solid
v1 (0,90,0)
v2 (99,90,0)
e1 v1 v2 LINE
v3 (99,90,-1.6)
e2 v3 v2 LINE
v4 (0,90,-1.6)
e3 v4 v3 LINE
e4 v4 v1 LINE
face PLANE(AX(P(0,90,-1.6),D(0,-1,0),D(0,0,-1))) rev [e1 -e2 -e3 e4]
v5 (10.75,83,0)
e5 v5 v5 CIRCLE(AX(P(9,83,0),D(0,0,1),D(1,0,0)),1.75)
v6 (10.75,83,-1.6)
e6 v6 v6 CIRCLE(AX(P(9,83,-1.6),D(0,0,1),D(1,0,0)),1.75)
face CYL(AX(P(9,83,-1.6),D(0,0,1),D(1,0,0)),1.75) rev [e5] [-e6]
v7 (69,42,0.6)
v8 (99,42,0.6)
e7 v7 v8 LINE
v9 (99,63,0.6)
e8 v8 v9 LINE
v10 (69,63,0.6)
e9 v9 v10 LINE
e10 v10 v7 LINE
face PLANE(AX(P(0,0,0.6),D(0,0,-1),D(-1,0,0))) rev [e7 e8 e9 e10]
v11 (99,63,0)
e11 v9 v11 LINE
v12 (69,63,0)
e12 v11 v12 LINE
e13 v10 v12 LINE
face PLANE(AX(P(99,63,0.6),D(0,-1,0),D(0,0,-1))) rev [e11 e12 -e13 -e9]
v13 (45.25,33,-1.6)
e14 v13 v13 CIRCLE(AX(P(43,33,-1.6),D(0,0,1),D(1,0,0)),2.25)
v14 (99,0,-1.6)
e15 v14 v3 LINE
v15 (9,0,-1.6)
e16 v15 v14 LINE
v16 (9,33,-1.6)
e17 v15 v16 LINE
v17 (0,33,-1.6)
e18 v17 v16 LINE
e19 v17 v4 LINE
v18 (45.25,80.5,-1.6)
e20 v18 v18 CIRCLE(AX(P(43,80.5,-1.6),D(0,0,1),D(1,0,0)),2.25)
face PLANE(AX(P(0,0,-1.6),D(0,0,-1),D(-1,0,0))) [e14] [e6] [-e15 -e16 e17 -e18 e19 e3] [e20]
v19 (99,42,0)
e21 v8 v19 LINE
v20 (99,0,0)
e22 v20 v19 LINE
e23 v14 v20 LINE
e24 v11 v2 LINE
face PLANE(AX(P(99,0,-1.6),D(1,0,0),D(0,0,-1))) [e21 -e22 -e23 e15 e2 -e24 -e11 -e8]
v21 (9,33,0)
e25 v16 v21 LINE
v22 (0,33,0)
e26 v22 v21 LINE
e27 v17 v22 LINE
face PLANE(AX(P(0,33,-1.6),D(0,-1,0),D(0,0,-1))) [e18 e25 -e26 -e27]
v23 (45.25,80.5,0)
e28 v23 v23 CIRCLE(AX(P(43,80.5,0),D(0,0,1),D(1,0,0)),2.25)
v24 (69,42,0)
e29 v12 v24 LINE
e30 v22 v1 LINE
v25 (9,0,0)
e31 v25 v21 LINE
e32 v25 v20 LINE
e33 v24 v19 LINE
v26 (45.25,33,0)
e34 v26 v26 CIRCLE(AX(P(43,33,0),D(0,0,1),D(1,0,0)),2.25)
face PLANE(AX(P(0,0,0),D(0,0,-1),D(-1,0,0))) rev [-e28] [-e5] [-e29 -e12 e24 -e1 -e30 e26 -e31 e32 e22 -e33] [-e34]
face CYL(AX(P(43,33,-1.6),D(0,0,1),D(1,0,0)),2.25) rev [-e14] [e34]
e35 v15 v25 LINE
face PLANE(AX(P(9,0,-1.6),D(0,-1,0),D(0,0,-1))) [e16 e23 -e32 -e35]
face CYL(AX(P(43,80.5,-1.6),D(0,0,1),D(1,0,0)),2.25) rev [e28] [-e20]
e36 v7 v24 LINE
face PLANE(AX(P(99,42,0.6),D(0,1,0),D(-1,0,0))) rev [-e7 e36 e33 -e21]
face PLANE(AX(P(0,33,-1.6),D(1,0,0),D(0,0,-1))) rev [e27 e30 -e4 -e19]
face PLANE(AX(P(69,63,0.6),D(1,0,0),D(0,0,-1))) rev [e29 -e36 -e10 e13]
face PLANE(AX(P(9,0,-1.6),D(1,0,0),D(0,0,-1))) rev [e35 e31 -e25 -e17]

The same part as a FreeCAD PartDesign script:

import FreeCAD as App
import Part
import Sketcher
from FreeCAD import Vector
Q = App.Units.Quantity


def add_polygon(sketch, points):
    """Adds a closed chain of lines whose ends are joined by coincident constraints."""
    first, n = sketch.GeometryCount, len(points)
    for a, b in zip(points, points[1:] + points[:1]):
        sketch.addGeometry(Part.LineSegment(App.Vector(*a, 0), App.Vector(*b, 0)), False)
    for i in range(n):
        sketch.addConstraint(Sketcher.Constraint("Coincident", first + i, 2, first + (i + 1) % n, 1))

doc = App.newDocument("Part")
body = doc.addObject("PartDesign::Body", "Body")

# Sketch on XY plane
sketch1 = doc.addObject("Sketcher::SketchObject", "Sketch")
body.addObject(sketch1)
sketch1.AttachmentSupport = (doc.XY_Plane, [""])
sketch1.MapMode = "FlatFace"
add_polygon(sketch1, [(9, 0), (99, 0), (99, 90), (0, 90), (0, 33), (9, 33)])  # lines 0-5
sketch1.addConstraint([
    Sketcher.Constraint("Horizontal", 0),
    Sketcher.Constraint("Vertical", 1),
    Sketcher.Constraint("Horizontal", 2),
    Sketcher.Constraint("Vertical", 3),
    Sketcher.Constraint("Horizontal", 4),
    Sketcher.Constraint("Vertical", 5),
    Sketcher.Constraint("PointOnObject", 0, 2, -1),
    Sketcher.Constraint("PointOnObject", 2, 2, -2),
    Sketcher.Constraint("Equal", 0, 1),
    Sketcher.Constraint("DistanceX", 0, 1, 0, 2, Q("90 mm")),
    Sketcher.Constraint("DistanceX", 2, 2, 2, 1, Q("99 mm")),
    Sketcher.Constraint("DistanceY", 3, 2, 3, 1, Q("57 mm")),
])
pad1 = doc.addObject("PartDesign::Pad", "Pad")
body.addObject(pad1)
pad1.Profile = sketch1
pad1.Length = 1.6
pad1.Reversed = True

# Sketch on XY plane
sketch2 = doc.addObject("Sketcher::SketchObject", "Sketch001")
body.addObject(sketch2)
sketch2.AttachmentSupport = (doc.XY_Plane, [""])
sketch2.MapMode = "FlatFace"
sketch2.addGeometry([
    Part.Circle(Vector(9, 83, 0), Vector(0, 0, 1), 1.8),
    Part.Circle(Vector(43, 80.5, 0), Vector(0, 0, 1), 2.2),
    Part.Circle(Vector(43, 33, 0), Vector(0, 0, 1), 2.2),
], False)
sketch2.addConstraint([
    Sketcher.Constraint("Equal", 1, 2),
    Sketcher.Constraint("Vertical", 1, 3, 2, 3),
    Sketcher.Constraint("Diameter", 0, Q("3.5 mm")),
    Sketcher.Constraint("Diameter", 1, Q("4.5 mm")),
    Sketcher.Constraint("DistanceX", -1, 1, 0, 3, Q("9 mm")),
    Sketcher.Constraint("DistanceY", -1, 1, 0, 3, Q("83 mm")),
    Sketcher.Constraint("DistanceX", -1, 1, 1, 3, Q("43 mm")),
    Sketcher.Constraint("DistanceY", -1, 1, 2, 3, Q("33 mm")),
    Sketcher.Constraint("DistanceY", -1, 1, 1, 3, Q("80.5 mm")),
])
pocket1 = doc.addObject("PartDesign::Pocket", "Pocket")
body.addObject(pocket1)
pocket1.Profile = sketch2
pocket1.Type = "ThroughAll"

# Sketch on XY plane
sketch3 = doc.addObject("Sketcher::SketchObject", "Sketch002")
body.addObject(sketch3)
sketch3.AttachmentSupport = (doc.XY_Plane, [""])
sketch3.MapMode = "FlatFace"
add_polygon(sketch3, [(69, 63), (69, 42), (99, 42), (99, 63)])  # lines 0-3
sketch3.addConstraint([
    Sketcher.Constraint("Vertical", 0),
    Sketcher.Constraint("Horizontal", 1),
    Sketcher.Constraint("Vertical", 2),
    Sketcher.Constraint("Horizontal", 3),
    Sketcher.Constraint("DistanceX", 1, 1, 1, 2, Q("30 mm")),
    Sketcher.Constraint("DistanceY", 0, 2, 0, 1, Q("21 mm")),
    Sketcher.Constraint("DistanceX", -1, 1, 0, 2, Q("69 mm")),
    Sketcher.Constraint("DistanceY", -1, 1, 0, 2, Q("42 mm")),
])
pad2 = doc.addObject("PartDesign::Pad", "Pad001")
body.addObject(pad2)
pad2.Profile = sketch3
pad2.Length = 0.6

doc.recompute()
